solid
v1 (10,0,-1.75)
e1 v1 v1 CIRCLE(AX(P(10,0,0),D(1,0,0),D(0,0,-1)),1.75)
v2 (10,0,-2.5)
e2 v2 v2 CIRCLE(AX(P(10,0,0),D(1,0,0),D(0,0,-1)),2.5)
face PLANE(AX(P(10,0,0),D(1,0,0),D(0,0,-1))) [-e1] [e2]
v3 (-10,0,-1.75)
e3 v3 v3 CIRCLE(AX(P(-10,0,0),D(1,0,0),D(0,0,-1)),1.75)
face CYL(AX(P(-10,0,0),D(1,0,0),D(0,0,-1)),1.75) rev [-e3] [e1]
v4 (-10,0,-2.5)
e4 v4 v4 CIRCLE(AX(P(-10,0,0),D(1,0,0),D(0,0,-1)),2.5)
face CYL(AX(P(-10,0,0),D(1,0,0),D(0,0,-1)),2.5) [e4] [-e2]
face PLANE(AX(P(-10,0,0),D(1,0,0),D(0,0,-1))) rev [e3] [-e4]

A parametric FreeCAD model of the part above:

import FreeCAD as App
import Part
import Sketcher
from FreeCAD import Vector

doc = App.newDocument("Part")
params = doc.addObject("Spreadsheet::Sheet", "Params")
for row, (alias, value) in enumerate([
    ("sketch1_diameter", "5 mm"),
    ("sketch1_diameter2", "3.5 mm"),
    ("pad1_length", "10 mm"),
    ("pad1_length2", "10 mm"),
], start=1):
    params.set(f"A{row}", alias)
    params.set(f"B{row}", "=" + value)
    params.setAlias(f"B{row}", alias)

body = doc.addObject("PartDesign::Body", "Body")

# Sketch on YZ plane
sketch1 = body.newObject("Sketcher::SketchObject", "Sketch")
sketch1.AttachmentSupport = (doc.getObject("YZ_Plane"), [""])
sketch1.MapMode = "FlatFace"
sketch1.addGeometry([
    Part.Circle(Vector(0, 0, 0), Vector(0, 0, 1), 2.5),
    Part.Circle(Vector(0, 0, 0), Vector(0, 0, 1), 1.75),
], False)
sketch1.addConstraint([
    Sketcher.Constraint("Coincident", 0, 3, -1, 1),
    Sketcher.Constraint("Coincident", 1, 3, -1, 1),
    Sketcher.Constraint("Diameter", 0, 5.0),
    Sketcher.Constraint("Diameter", 1, 3.5),
])
sketch1.setExpression("Constraints[2]", "Params.sketch1_diameter")
sketch1.setExpression("Constraints[3]", "Params.sketch1_diameter2")
pad1 = body.newObject("PartDesign::Pad", "Pad")
pad1.Profile = sketch1
pad1.Type = "TwoLengths"
pad1.setExpression("Length", "Params.pad1_length")
pad1.setExpression("Length2", "Params.pad1_length2")

doc.recompute()
